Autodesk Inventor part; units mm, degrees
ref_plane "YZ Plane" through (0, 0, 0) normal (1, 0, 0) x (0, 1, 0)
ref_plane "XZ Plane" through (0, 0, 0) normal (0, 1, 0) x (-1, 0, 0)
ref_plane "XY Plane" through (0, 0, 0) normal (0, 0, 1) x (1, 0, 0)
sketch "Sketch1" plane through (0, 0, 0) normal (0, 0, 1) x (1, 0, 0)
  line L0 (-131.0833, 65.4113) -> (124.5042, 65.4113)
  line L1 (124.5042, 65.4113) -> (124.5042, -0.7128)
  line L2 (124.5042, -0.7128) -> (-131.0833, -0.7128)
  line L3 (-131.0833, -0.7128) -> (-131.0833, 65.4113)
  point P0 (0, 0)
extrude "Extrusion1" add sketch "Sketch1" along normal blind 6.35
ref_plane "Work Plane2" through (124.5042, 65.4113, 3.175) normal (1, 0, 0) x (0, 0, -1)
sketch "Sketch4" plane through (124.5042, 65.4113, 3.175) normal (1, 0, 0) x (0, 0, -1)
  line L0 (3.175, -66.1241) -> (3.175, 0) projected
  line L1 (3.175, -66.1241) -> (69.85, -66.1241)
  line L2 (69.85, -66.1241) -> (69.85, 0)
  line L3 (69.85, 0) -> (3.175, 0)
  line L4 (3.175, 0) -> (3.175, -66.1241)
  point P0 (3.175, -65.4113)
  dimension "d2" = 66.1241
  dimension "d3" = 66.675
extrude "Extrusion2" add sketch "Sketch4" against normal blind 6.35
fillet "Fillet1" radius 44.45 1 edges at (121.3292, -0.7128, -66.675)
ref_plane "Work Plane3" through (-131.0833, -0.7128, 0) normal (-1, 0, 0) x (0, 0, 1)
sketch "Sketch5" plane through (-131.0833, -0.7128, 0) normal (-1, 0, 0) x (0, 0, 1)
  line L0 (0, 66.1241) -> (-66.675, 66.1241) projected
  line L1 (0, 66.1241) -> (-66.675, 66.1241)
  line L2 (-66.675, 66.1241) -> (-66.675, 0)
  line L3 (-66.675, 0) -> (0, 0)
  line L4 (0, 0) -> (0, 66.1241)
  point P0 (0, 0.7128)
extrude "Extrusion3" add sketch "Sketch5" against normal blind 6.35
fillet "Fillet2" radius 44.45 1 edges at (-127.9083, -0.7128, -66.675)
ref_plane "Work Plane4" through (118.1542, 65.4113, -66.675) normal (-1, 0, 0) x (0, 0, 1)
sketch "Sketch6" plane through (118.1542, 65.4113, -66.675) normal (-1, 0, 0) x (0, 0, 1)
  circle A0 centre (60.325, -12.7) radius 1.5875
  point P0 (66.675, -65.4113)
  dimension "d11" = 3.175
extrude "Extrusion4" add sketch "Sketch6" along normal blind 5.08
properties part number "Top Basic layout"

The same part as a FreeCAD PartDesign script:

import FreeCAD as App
import Part
import Sketcher
from FreeCAD import Vector
Q = App.Units.Quantity


def edges_at(feature, points):
    """Names of the edges that pass closest to the given points."""
    edges = feature.Shape.Edges
    near = lambda p: min(range(len(edges)), key=lambda i: edges[i].distToShape(Part.Vertex(*p))[0])
    return sorted({f"Edge{near(p) + 1}" for p in points})


def add_polygon(sketch, points):
    """Adds a closed chain of lines whose ends are joined by coincident constraints."""
    first, n = sketch.GeometryCount, len(points)
    for a, b in zip(points, points[1:] + points[:1]):
        sketch.addGeometry(Part.LineSegment(App.Vector(*a, 0), App.Vector(*b, 0)), False)
    for i in range(n):
        sketch.addConstraint(Sketcher.Constraint("Coincident", first + i, 2, first + (i + 1) % n, 1))

doc = App.newDocument("Part")
body = doc.addObject("PartDesign::Body", "Body")

# Sketch on XY plane
sketch1 = body.newObject("Sketcher::SketchObject", "Sketch")
sketch1.AttachmentSupport = (doc.getObject("XY_Plane"), [""])
sketch1.MapMode = "FlatFace"
add_polygon(sketch1, [(125, 65), (-131, 65), (-131, -1), (125, -1)])  # lines 0-3
sketch1.addConstraint(Sketcher.Constraint("Horizontal", 0))
sketch1.addConstraint(Sketcher.Constraint("Vertical", 1))
sketch1.addConstraint(Sketcher.Constraint("Horizontal", 2))
sketch1.addConstraint(Sketcher.Constraint("Vertical", 3))
sketch1.addConstraint(Sketcher.Constraint("DistanceX", 0, 2, 0, 1, Q("10.0625 in")))
sketch1.addConstraint(Sketcher.Constraint("DistanceY", 1, 2, 1, 1, Q("2.6033 in")))
sketch1.addConstraint(Sketcher.Constraint("DistanceX", 0, 2, -1, 1, Q("131.0833 mm")))
sketch1.addConstraint(Sketcher.Constraint("DistanceY", -1, 1, 0, 2, Q("65.4113 mm")))
pad1 = body.newObject("PartDesign::Pad", "Pad")
pad1.Profile = sketch1
pad1.Length = Q("0.25 in")

# Sketch on YZ plane
sketch2 = body.newObject("Sketcher::SketchObject", "Sketch001")
sketch2.AttachmentSupport = (doc.getObject("YZ_Plane"), [""])
sketch2.MapMode = "FlatFace"
sketch2.AttachmentOffset = App.Placement(Vector(0, 0, 124.5042), App.Rotation())
add_polygon(sketch2, [(65, 0), (-1, 0), (-1, -67), (65, -67)])  # lines 0-3
sketch2.addConstraint(Sketcher.Constraint("Horizontal", 0))
sketch2.addConstraint(Sketcher.Constraint("Vertical", 1))
sketch2.addConstraint(Sketcher.Constraint("Horizontal", 2))
sketch2.addConstraint(Sketcher.Constraint("Vertical", 3))
sketch2.addConstraint(Sketcher.Constraint("PointOnObject", 0, 2, -1))
sketch2.addConstraint(Sketcher.Constraint("DistanceY", 1, 2, 1, 1, Q("2.625 in")))
sketch2.addConstraint(Sketcher.Constraint("DistanceX", 0, 2, 0, 1, Q("2.6033 in")))
sketch2.addConstraint(Sketcher.Constraint("DistanceX", 0, 2, -1, 1, Q("0.7128 mm")))
pad2 = body.newObject("PartDesign::Pad", "Pad001")
pad2.Profile = sketch2
pad2.Length = Q("0.25 in")
pad2.Reversed = True
doc.recompute()

fillet = body.newObject("PartDesign::Fillet", "Fillet")
fillet.Base = (pad2, edges_at(pad2, [(121.329, -0.713, -66.675)]))
fillet.Radius = Q("1.75 in")

# Sketch on YZ plane
sketch3 = body.newObject("Sketcher::SketchObject", "Sketch002")
sketch3.AttachmentSupport = (doc.getObject("YZ_Plane"), [""])
sketch3.MapMode = "FlatFace"
sketch3.AttachmentOffset = App.Placement(Vector(0, 0, -131.0833), App.Rotation())
add_polygon(sketch3, [(-1, 0), (65, 0), (65, -67), (-1, -67)])  # lines 0-3
sketch3.addConstraint(Sketcher.Constraint("Horizontal", 0))
sketch3.addConstraint(Sketcher.Constraint("Vertical", 1))
sketch3.addConstraint(Sketcher.Constraint("Horizontal", 2))
sketch3.addConstraint(Sketcher.Constraint("Vertical", 3))
sketch3.addConstraint(Sketcher.Constraint("PointOnObject", 0, 2, -1))
sketch3.addConstraint(Sketcher.Constraint("DistanceY", 1, 2, 1, 1, Q("2.625 in")))
sketch3.addConstraint(Sketcher.Constraint("DistanceX", 0, 1, 0, 2, Q("2.6033 in")))
sketch3.addConstraint(Sketcher.Constraint("DistanceX", -1, 1, 0, 2, Q("65.4113 mm")))
pad3 = body.newObject("PartDesign::Pad", "Pad002")
pad3.Profile = sketch3
pad3.Length = Q("0.25 in")
doc.recompute()

fillet2 = body.newObject("PartDesign::Fillet", "Fillet001")
fillet2.Base = (pad3, edges_at(pad3, [(-127.908, -0.713, -66.675)]))
fillet2.Radius = Q("1.75 in")

# Sketch on YZ plane
sketch4 = body.newObject("Sketcher::SketchObject", "Sketch003")
sketch4.AttachmentSupport = (doc.getObject("YZ_Plane"), [""])
sketch4.MapMode = "FlatFace"
sketch4.AttachmentOffset = App.Placement(Vector(0, 0, 118.1542), App.Rotation())
sketch4.addGeometry(Part.Circle(Vector(52.7, -6.3, 0), Vector(0, 0, 1), 1.6), False)
sketch4.addConstraint(Sketcher.Constraint("Diameter", 0, Q("0.125 in")))
sketch4.addConstraint(Sketcher.Constraint("DistanceY", 0, 3, -1, 1, Q("0.25 in")))
sketch4.addConstraint(Sketcher.Constraint("DistanceX", -1, 1, 0, 3, Q("52.7113 mm")))
pad4 = body.newObject("PartDesign::Pad", "Pad003")
pad4.Profile = sketch4
pad4.Length = Q("0.2 in")
pad4.Reversed = True

doc.recompute()
